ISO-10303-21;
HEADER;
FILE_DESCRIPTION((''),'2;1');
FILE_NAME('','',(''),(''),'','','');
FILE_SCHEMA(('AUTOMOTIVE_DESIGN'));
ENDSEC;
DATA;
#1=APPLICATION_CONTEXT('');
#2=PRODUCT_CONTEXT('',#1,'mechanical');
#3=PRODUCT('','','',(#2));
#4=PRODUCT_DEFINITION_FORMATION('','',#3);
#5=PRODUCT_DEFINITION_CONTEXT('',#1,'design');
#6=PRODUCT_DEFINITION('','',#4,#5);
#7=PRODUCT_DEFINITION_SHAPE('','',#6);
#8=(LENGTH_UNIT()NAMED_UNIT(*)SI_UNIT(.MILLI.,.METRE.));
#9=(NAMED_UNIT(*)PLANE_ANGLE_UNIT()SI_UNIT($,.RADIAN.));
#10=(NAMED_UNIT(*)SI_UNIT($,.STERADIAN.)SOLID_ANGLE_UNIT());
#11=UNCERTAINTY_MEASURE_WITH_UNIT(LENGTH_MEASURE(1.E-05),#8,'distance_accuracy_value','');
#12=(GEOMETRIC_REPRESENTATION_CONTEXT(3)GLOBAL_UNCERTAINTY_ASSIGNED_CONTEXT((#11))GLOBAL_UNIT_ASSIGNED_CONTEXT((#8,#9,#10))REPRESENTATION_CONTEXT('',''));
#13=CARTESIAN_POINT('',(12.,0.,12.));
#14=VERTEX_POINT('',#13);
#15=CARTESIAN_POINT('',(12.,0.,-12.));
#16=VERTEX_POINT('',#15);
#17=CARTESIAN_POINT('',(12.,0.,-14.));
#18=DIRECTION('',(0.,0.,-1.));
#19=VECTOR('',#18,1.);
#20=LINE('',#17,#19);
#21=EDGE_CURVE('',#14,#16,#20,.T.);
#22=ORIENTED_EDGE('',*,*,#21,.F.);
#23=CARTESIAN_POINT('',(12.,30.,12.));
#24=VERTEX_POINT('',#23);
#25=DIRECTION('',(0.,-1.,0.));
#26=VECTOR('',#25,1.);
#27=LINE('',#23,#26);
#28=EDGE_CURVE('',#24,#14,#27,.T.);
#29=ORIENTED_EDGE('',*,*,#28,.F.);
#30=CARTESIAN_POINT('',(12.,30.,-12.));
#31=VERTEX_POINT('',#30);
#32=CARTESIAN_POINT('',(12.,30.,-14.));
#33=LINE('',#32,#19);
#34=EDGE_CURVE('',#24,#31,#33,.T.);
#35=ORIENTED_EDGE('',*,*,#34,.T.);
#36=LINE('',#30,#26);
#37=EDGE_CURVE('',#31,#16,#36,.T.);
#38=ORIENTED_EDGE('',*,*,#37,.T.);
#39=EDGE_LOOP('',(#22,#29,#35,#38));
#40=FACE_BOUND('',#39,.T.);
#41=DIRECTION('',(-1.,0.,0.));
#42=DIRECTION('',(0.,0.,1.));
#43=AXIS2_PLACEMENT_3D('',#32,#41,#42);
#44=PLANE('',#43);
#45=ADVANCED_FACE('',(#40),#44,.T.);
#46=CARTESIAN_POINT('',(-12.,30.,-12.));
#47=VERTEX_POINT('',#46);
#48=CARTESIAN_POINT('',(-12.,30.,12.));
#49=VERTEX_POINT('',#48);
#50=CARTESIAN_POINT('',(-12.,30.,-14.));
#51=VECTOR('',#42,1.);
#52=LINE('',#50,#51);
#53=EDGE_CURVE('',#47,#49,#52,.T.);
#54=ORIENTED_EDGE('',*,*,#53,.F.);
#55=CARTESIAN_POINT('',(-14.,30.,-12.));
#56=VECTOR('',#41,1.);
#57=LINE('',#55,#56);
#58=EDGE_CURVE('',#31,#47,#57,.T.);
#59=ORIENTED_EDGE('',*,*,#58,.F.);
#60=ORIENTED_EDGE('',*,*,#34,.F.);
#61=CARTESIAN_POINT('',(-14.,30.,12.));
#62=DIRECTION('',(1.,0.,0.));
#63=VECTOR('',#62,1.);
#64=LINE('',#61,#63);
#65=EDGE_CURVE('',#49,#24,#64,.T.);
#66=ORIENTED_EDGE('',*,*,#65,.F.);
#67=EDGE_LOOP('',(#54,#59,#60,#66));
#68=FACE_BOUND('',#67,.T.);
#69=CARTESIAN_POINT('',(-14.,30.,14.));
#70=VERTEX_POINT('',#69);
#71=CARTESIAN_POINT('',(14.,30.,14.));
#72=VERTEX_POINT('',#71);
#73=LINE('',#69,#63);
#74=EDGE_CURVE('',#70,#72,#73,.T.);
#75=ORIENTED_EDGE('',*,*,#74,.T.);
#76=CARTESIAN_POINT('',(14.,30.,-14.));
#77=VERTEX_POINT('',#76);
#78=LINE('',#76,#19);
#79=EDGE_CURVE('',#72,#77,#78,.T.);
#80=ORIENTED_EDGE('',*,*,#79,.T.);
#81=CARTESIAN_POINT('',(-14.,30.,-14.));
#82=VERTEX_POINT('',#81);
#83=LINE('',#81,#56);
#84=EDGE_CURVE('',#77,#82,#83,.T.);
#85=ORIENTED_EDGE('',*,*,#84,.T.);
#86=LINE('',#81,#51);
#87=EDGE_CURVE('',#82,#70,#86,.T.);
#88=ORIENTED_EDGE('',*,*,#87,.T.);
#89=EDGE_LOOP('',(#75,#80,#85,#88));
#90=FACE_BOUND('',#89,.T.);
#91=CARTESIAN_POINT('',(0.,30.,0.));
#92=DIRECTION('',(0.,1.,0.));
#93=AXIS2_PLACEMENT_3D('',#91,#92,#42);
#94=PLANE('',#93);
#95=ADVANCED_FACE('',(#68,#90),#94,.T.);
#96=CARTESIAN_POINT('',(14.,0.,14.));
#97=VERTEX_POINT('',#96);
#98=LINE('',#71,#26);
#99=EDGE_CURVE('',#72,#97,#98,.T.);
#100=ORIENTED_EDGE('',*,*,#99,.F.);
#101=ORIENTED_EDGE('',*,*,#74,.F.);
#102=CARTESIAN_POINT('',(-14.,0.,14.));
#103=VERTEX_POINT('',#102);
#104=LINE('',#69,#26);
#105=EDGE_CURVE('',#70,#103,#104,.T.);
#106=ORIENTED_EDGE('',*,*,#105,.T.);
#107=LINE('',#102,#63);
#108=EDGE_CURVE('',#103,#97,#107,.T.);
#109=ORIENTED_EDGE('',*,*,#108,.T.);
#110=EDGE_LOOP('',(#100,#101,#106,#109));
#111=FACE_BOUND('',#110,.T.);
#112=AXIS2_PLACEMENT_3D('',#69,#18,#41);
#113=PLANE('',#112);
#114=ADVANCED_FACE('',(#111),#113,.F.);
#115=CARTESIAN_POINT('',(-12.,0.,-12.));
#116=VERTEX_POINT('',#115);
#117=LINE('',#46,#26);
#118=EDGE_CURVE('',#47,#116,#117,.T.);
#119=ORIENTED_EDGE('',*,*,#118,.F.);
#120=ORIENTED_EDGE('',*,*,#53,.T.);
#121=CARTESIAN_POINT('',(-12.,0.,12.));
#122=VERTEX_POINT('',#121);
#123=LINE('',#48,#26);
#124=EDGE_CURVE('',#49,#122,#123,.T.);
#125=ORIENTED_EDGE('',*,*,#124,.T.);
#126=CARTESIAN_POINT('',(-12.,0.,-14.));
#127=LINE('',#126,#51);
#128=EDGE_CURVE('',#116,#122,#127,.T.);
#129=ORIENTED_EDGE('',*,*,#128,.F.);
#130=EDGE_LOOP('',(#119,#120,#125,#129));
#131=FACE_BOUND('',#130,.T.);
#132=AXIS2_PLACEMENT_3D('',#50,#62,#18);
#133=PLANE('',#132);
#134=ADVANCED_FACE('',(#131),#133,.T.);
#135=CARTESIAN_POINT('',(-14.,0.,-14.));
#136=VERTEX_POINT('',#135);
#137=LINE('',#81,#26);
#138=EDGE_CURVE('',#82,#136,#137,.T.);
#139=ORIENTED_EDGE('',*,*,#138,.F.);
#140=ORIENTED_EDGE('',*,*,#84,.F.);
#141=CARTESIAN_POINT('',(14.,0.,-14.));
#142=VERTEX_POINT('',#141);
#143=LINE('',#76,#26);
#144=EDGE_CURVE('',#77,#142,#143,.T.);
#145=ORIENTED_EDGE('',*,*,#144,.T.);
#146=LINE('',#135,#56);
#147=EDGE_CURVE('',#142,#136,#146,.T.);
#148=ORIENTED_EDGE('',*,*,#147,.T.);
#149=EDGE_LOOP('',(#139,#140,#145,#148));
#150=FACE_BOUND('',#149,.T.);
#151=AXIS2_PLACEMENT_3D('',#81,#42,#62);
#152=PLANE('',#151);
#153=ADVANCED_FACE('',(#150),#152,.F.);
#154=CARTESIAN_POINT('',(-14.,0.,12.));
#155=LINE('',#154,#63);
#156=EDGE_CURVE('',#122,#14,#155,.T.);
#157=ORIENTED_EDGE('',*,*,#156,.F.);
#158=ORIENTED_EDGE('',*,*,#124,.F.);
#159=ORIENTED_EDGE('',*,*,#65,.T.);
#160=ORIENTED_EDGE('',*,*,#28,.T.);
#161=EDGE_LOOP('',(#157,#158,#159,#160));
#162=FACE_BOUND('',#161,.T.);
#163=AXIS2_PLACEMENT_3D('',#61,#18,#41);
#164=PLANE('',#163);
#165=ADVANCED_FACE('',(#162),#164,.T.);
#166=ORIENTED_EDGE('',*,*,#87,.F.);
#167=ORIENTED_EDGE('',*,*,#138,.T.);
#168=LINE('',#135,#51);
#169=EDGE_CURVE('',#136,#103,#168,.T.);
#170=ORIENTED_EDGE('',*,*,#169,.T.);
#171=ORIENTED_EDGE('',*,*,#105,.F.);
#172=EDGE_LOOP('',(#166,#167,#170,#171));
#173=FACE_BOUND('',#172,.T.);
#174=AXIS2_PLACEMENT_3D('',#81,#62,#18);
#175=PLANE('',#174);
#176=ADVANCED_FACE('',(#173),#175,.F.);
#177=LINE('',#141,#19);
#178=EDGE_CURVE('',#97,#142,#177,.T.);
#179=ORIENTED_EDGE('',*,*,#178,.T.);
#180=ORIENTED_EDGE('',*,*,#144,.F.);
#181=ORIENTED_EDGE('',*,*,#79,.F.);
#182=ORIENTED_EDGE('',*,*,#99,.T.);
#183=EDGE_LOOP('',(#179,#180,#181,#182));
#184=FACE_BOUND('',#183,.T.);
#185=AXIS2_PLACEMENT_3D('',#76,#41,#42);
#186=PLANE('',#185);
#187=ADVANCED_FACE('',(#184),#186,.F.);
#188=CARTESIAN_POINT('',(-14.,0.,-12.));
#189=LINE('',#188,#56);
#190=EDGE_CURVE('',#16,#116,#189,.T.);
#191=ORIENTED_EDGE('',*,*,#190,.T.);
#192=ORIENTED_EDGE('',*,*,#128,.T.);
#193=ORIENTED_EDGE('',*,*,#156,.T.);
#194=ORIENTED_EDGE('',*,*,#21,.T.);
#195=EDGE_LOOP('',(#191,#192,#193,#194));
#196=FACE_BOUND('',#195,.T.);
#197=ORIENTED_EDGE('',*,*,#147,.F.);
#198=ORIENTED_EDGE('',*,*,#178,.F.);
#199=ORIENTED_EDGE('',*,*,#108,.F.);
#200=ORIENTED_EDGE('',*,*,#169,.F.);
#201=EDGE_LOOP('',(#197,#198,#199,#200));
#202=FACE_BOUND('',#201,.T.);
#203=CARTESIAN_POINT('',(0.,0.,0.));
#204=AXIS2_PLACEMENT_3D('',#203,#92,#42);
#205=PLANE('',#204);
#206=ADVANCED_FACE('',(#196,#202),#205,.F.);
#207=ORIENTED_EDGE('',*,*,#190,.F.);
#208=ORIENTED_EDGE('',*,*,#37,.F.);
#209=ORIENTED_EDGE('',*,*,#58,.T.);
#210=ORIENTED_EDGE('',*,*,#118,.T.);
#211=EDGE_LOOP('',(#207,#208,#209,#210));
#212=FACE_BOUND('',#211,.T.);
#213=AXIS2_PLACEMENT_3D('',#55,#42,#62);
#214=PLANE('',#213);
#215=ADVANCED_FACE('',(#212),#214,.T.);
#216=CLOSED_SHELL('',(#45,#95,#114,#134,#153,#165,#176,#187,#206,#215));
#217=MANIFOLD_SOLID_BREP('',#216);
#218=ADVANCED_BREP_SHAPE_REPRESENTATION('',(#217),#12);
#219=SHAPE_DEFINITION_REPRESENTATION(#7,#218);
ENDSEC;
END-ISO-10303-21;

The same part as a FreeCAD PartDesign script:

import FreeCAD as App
import Part
import Sketcher

V = App.Vector
Q = App.Units.Quantity


def add_polygon(sketch, points):
    """Adds a closed chain of lines whose ends are joined by coincident constraints."""
    first, n = sketch.GeometryCount, len(points)
    for a, b in zip(points, points[1:] + points[:1]):
        sketch.addGeometry(Part.LineSegment(App.Vector(*a, 0), App.Vector(*b, 0)), False)
    for i in range(n):
        sketch.addConstraint(Sketcher.Constraint("Coincident", first + i, 2, first + (i + 1) % n, 1))

doc = App.newDocument("Part")
body = doc.addObject("PartDesign::Body", "Body")

# Sketch on XZ plane
sketch1 = body.newObject("Sketcher::SketchObject", "Sketch")
sketch1.AttachmentSupport = (doc.getObject("XZ_Plane"), [""])
sketch1.MapMode = "FlatFace"
add_polygon(sketch1, [(-14, -14), (-14, 14), (14, 14), (14, -14)])  # lines 0-3
add_polygon(sketch1, [(12, 12), (-12, 12), (-12, -12), (12, -12)])  # lines 4-7
sketch1.addConstraint([
    Sketcher.Constraint("Vertical", 0),
    Sketcher.Constraint("Horizontal", 1),
    Sketcher.Constraint("Vertical", 2),
    Sketcher.Constraint("Horizontal", 3),
    Sketcher.Constraint("Horizontal", 4),
    Sketcher.Constraint("Vertical", 5),
    Sketcher.Constraint("Horizontal", 6),
    Sketcher.Constraint("Vertical", 7),
    Sketcher.Constraint("Symmetric", 0, 2, 2, 2, -1, 1),
    Sketcher.Constraint("Symmetric", 4, 2, 6, 2, -1, 1),
    Sketcher.Constraint("Equal", 3, 0),
    Sketcher.Constraint("Equal", 6, 5),
    Sketcher.Constraint("DistanceX", 1, 1, 1, 2, Q("28 mm")),
    Sketcher.Constraint("DistanceX", 4, 2, 4, 1, Q("24 mm")),
])
pad1 = body.newObject("PartDesign::Pad", "Pad")
pad1.Profile = sketch1
pad1.Length = 30
pad1.Reversed = True

doc.recompute()
